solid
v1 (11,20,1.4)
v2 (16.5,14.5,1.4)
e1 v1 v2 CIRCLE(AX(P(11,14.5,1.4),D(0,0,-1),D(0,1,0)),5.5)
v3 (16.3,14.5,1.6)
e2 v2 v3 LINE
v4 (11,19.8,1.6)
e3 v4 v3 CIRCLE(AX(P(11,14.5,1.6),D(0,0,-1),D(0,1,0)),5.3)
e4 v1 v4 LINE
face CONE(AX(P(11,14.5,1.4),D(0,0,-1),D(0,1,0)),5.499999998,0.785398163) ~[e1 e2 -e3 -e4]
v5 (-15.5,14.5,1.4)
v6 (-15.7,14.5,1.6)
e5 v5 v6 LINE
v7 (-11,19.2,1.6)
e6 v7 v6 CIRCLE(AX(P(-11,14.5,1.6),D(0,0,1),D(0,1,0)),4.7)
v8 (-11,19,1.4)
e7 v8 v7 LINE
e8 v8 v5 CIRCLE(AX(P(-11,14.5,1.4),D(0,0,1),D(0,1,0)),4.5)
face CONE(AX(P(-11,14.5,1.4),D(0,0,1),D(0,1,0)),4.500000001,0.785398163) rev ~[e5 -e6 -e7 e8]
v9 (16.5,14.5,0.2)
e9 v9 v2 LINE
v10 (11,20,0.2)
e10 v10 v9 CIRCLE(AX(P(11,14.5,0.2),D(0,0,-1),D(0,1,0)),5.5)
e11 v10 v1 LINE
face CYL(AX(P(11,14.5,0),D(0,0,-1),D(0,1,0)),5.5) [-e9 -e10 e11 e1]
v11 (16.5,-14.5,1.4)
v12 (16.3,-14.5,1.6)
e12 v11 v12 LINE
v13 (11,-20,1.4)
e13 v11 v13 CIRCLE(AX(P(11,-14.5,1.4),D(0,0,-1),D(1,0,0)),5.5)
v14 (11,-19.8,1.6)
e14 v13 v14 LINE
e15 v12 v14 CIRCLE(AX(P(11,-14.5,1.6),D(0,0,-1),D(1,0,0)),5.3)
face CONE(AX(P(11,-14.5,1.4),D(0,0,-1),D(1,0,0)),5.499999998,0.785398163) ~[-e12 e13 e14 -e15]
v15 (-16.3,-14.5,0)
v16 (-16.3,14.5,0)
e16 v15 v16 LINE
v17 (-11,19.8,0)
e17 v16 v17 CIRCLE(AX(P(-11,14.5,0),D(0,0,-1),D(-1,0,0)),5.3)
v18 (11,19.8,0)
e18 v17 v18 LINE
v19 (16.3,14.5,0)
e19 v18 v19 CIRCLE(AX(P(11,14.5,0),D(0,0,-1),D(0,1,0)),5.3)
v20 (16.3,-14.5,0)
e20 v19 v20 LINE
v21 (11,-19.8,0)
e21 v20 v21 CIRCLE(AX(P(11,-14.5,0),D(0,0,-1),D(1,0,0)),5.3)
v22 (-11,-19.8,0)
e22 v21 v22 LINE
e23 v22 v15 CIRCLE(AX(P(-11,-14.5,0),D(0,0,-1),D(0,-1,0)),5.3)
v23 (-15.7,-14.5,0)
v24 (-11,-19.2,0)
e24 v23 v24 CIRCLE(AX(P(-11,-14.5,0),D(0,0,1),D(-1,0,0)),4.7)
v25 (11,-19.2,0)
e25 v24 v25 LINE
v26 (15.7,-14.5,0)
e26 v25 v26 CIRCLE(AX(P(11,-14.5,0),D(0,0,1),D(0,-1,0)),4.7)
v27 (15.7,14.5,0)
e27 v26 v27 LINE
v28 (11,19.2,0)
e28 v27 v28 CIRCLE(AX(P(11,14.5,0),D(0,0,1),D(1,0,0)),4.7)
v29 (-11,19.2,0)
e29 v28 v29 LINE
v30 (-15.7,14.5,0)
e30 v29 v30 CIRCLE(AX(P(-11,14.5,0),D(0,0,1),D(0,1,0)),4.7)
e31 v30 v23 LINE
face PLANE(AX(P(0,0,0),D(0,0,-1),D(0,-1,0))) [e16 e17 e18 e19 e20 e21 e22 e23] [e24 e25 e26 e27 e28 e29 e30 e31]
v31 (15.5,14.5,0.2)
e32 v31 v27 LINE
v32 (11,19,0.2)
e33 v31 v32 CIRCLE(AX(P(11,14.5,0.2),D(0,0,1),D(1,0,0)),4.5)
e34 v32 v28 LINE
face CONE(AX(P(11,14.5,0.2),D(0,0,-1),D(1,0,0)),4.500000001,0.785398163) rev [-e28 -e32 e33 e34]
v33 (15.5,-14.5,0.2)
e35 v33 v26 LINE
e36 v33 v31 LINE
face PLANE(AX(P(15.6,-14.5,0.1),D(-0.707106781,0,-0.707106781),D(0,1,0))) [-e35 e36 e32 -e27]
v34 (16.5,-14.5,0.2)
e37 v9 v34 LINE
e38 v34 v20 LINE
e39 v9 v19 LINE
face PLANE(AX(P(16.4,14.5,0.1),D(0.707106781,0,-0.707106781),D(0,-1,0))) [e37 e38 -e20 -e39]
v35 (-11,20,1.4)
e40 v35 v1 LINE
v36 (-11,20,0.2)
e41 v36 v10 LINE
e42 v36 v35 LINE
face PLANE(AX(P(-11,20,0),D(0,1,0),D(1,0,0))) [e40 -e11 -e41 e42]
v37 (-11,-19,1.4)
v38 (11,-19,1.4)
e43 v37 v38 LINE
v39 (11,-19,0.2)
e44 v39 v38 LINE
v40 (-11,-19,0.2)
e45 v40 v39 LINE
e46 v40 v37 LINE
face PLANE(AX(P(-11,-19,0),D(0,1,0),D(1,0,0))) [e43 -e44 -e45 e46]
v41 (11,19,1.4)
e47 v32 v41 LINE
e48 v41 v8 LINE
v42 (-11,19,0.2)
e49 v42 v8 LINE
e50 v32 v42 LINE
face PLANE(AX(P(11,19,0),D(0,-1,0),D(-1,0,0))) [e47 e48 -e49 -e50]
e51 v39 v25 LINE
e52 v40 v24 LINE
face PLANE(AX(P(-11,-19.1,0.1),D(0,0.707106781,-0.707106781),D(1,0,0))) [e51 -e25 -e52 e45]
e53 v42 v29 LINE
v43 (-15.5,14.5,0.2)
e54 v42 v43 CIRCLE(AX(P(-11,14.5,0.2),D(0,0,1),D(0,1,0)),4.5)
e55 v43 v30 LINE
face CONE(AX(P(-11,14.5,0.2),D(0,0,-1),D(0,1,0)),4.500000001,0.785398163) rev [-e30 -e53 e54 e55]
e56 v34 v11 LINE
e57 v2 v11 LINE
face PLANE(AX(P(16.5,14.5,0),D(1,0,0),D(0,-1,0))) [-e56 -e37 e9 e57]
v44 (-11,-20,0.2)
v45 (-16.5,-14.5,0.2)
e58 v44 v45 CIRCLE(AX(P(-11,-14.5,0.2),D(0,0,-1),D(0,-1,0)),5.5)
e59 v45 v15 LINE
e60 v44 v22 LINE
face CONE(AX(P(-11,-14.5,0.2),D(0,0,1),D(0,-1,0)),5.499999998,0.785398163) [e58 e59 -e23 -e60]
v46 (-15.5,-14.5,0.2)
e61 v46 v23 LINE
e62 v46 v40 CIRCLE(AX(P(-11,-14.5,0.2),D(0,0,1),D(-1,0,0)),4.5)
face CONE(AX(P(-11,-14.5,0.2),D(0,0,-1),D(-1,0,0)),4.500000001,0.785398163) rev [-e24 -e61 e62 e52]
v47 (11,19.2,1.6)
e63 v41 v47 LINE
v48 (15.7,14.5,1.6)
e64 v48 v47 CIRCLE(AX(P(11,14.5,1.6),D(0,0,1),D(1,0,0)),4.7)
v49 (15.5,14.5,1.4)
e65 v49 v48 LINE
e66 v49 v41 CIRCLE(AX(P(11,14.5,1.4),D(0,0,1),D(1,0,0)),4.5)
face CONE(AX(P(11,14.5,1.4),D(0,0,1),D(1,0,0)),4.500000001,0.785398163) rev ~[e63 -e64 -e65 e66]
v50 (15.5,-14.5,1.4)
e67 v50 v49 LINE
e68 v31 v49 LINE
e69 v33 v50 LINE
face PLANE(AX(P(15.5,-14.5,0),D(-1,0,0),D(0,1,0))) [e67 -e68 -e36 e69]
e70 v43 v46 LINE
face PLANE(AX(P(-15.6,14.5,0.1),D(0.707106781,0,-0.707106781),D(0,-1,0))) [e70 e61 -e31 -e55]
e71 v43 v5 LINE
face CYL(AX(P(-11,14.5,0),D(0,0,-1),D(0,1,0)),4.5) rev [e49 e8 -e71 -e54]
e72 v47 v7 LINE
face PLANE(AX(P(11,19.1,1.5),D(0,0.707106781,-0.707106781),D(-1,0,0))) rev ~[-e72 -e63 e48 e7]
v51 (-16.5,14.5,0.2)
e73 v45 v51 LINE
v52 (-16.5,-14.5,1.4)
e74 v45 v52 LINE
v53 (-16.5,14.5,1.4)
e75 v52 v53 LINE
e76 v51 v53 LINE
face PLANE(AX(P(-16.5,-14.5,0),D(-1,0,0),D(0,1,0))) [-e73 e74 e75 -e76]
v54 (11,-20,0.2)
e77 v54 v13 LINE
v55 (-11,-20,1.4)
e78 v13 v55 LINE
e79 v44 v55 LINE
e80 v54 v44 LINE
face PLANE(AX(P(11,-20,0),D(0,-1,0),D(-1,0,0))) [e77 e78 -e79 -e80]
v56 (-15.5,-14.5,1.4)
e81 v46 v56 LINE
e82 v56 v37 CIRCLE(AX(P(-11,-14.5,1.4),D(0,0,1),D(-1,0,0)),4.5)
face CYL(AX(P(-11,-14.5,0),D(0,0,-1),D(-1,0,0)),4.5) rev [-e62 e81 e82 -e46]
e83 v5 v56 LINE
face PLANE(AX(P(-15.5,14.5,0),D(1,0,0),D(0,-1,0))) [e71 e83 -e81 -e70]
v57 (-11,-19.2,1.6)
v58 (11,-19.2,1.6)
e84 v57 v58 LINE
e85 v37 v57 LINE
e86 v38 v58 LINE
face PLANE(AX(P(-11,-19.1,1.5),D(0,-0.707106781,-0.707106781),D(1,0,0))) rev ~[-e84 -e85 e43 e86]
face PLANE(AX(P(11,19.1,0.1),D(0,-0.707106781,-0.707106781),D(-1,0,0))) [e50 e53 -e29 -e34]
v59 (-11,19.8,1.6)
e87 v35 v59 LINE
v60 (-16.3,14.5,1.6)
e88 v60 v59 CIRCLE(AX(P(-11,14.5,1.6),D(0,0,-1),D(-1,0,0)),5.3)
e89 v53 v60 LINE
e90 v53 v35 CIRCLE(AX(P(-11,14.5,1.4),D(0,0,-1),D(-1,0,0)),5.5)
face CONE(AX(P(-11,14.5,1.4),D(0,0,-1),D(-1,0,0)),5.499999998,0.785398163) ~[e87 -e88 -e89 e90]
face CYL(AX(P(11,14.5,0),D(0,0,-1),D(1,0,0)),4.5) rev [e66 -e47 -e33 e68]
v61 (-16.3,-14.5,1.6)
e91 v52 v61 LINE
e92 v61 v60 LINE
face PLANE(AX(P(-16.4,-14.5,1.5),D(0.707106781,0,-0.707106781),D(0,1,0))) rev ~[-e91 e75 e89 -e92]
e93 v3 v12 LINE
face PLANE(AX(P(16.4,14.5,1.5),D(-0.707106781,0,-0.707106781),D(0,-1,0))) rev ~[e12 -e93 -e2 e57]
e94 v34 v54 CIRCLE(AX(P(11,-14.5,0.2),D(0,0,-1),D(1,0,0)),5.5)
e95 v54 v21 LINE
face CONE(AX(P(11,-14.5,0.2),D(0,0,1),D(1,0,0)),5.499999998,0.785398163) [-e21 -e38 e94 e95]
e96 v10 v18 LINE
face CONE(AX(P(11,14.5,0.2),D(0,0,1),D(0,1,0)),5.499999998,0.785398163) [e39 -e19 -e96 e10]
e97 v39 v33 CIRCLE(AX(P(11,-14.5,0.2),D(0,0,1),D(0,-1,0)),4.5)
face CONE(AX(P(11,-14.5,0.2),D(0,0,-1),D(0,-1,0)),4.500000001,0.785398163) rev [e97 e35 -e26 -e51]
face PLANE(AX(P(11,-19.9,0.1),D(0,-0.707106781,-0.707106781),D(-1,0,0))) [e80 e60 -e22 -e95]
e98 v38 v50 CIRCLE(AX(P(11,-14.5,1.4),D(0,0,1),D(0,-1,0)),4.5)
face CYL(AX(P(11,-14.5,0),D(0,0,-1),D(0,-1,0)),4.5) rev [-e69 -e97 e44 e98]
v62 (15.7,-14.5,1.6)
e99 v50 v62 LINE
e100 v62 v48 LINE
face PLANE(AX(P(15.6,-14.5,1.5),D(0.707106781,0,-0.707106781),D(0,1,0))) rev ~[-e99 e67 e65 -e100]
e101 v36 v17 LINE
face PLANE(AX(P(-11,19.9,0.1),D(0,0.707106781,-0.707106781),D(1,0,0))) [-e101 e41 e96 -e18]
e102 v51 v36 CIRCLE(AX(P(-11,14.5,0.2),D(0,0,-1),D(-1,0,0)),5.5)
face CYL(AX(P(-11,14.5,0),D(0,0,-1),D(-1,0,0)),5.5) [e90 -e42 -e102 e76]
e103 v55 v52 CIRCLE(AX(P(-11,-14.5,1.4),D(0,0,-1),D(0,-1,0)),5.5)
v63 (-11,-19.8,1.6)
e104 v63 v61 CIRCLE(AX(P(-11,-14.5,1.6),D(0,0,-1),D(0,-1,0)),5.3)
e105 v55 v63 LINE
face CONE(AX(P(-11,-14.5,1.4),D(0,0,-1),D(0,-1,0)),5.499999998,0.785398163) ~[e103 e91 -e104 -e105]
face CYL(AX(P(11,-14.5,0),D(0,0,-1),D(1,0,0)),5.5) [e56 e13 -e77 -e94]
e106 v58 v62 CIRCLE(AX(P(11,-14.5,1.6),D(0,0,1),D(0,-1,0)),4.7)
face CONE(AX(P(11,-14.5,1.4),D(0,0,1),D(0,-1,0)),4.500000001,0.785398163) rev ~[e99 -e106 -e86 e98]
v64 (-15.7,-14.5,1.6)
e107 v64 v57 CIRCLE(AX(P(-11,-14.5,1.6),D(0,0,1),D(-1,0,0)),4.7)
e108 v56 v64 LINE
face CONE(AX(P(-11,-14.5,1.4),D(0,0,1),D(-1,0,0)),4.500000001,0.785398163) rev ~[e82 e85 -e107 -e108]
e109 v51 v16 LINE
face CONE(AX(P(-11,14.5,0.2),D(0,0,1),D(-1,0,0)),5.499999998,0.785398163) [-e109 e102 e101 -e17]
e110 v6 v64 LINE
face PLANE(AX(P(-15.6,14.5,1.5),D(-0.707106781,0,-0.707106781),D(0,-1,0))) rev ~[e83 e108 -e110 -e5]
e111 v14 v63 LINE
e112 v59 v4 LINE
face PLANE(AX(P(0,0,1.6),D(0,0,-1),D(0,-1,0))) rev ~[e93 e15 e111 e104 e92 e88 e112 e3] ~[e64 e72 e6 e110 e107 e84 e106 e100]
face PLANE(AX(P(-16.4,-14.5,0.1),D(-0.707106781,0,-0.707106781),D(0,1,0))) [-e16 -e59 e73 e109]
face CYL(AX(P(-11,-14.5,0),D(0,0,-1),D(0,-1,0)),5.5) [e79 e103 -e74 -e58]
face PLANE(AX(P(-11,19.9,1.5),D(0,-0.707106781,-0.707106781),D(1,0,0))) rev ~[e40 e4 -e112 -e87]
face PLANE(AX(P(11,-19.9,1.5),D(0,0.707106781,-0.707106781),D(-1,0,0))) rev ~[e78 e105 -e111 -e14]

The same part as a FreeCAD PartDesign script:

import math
import FreeCAD as App
import Part
import Sketcher
from FreeCAD import Vector
Q = App.Units.Quantity


def edges_at(feature, points):
    """Names of the edges that pass closest to the given points."""
    edges = feature.Shape.Edges
    near = lambda p: min(range(len(edges)), key=lambda i: edges[i].distToShape(Part.Vertex(*p))[0])
    return sorted({f"Edge{near(p) + 1}" for p in points})

doc = App.newDocument("Part")
body = doc.addObject("PartDesign::Body", "Body")

sketch1 = body.newObject("Sketcher::SketchObject", "Sketch")
sketch1.AttachmentSupport = (doc.getObject("XY_Plane"), [""])
sketch1.MapMode = "FlatFace"
sketch1.addGeometry([
    Part.LineSegment(Vector(-11, -20, 0), Vector(11, -20, 0)),
    Part.ArcOfCircle(Part.Circle(Vector(11, -14.5, 0), Vector(0, 0, 1), 5.5), math.radians(-90), math.radians(0)),
    Part.LineSegment(Vector(16.5, -14.5, 0), Vector(16.5, 14.5, 0)),
    Part.ArcOfCircle(Part.Circle(Vector(11, 14.5, 0), Vector(0, 0, 1), 5.5), math.radians(0), math.radians(90)),
    Part.LineSegment(Vector(11, 20, 0), Vector(-11, 20, 0)),
    Part.ArcOfCircle(Part.Circle(Vector(-11, 14.5, 0), Vector(0, 0, 1), 5.5), math.radians(90), math.radians(180)),
    Part.LineSegment(Vector(-16.5, 14.5, 0), Vector(-16.5, -14.5, 0)),
    Part.ArcOfCircle(Part.Circle(Vector(-11, -14.5, 0), Vector(0, 0, 1), 5.5), math.radians(180), math.radians(270)),
    Part.ArcOfCircle(Part.Circle(Vector(11, -14.5, 0), Vector(0, 0, 1), 4.5), math.radians(-90), math.radians(0)),
    Part.LineSegment(Vector(11, -19, 0), Vector(-11, -19, 0)),
    Part.ArcOfCircle(Part.Circle(Vector(-11, -14.5, 0), Vector(0, 0, 1), 4.5), math.radians(-180), math.radians(-90)),
    Part.LineSegment(Vector(-15.5, -14.5, 0), Vector(-15.5, 14.5, 0)),
    Part.ArcOfCircle(Part.Circle(Vector(-11, 14.5, 0), Vector(0, 0, 1), 4.5), math.radians(90), math.radians(180)),
    Part.LineSegment(Vector(-11, 19, 0), Vector(11, 19, 0)),
    Part.ArcOfCircle(Part.Circle(Vector(11, 14.5, 0), Vector(0, 0, 1), 4.5), math.radians(0), math.radians(90)),
    Part.LineSegment(Vector(15.5, 14.5, 0), Vector(15.5, -14.5, 0)),
], False)
sketch1.addConstraint([
    Sketcher.Constraint("Tangent", 0, 2, 1, 1),
    Sketcher.Constraint("Tangent", 1, 2, 2, 1),
    Sketcher.Constraint("Tangent", 2, 2, 3, 1),
    Sketcher.Constraint("Tangent", 3, 2, 4, 1),
    Sketcher.Constraint("Tangent", 4, 2, 5, 1),
    Sketcher.Constraint("Tangent", 5, 2, 6, 1),
    Sketcher.Constraint("Tangent", 6, 2, 7, 1),
    Sketcher.Constraint("Tangent", 7, 2, 0, 1),
    Sketcher.Constraint("Tangent", 8, 1, 9, 1),
    Sketcher.Constraint("Tangent", 9, 2, 10, 2),
    Sketcher.Constraint("Tangent", 10, 1, 11, 1),
    Sketcher.Constraint("Tangent", 11, 2, 12, 2),
    Sketcher.Constraint("Tangent", 12, 1, 13, 1),
    Sketcher.Constraint("Tangent", 13, 2, 14, 2),
    Sketcher.Constraint("Tangent", 14, 1, 15, 1),
    Sketcher.Constraint("Tangent", 15, 2, 8, 2),
    Sketcher.Constraint("Horizontal", 0),
    Sketcher.Constraint("Vertical", 2),
    Sketcher.Constraint("Horizontal", 4),
    Sketcher.Constraint("Vertical", 6),
    Sketcher.Constraint("Horizontal", 9),
    Sketcher.Constraint("Vertical", 11),
    Sketcher.Constraint("Horizontal", 13),
    Sketcher.Constraint("Vertical", 15),
    Sketcher.Constraint("Coincident", 8, 3, 1, 3),
    Sketcher.Constraint("Coincident", 10, 3, 7, 3),
    Sketcher.Constraint("Coincident", 12, 3, 5, 3),
    Sketcher.Constraint("Equal", 1, 3),
    Sketcher.Constraint("Equal", 3, 5),
    Sketcher.Constraint("Equal", 5, 7),
    Sketcher.Constraint("Equal", 12, 14),
    Sketcher.Constraint("Symmetric", 1, 3, 5, 3, -1, 1),
    Sketcher.Constraint("Radius", 1, Q("5.5 mm")),
    Sketcher.Constraint("Radius", 8, Q("4.5 mm")),
    Sketcher.Constraint("DistanceX", 0, 1, 0, 2, Q("22 mm")),
    Sketcher.Constraint("DistanceY", 2, 1, 2, 2, Q("29 mm")),
])
pad1 = body.newObject("PartDesign::Pad", "Pad")
pad1.Profile = sketch1
pad1.Length = 1.6
doc.recompute()

chamfer = body.newObject("PartDesign::Chamfer", "Chamfer")
chamfer.Base = (pad1, edges_at(pad1, [
    (16.5, 0, 0),
    (14.889, -18.389, 0),
    (0, -20, 0),
    (-14.889, -18.389, 0),
    (14.889, -18.389, 1.6),
    (16.5, 0, 1.6),
    (14.889, 18.389, 1.6),
    (0, 20, 1.6),
    (14.182, 17.682, 0),
    (0, 19, 0),
    (-14.182, 17.682, 0),
    (-15.5, 0, 0),
    (-14.889, 18.389, 1.6),
    (-14.182, -17.682, 0),
    (0, -19, 0),
    (14.182, -17.682, 0),
    (15.5, 0, 0),
    (14.182, 17.682, 1.6),
    (0, 19, 1.6),
    (-14.182, 17.682, 1.6),
    (-15.5, 0, 1.6),
    (-14.182, -17.682, 1.6),
    (0, -19, 1.6),
    (14.182, -17.682, 1.6),
    (-16.5, 0, 1.6),
    (15.5, 0, 1.6),
    (-14.889, -18.389, 1.6),
    (-16.5, 0, 0),
    (0, -20, 1.6),
    (-14.889, 18.389, 0),
    (0, 20, 0),
    (14.889, 18.389, 0),
]))
chamfer.Size = 0.2

doc.recompute()
